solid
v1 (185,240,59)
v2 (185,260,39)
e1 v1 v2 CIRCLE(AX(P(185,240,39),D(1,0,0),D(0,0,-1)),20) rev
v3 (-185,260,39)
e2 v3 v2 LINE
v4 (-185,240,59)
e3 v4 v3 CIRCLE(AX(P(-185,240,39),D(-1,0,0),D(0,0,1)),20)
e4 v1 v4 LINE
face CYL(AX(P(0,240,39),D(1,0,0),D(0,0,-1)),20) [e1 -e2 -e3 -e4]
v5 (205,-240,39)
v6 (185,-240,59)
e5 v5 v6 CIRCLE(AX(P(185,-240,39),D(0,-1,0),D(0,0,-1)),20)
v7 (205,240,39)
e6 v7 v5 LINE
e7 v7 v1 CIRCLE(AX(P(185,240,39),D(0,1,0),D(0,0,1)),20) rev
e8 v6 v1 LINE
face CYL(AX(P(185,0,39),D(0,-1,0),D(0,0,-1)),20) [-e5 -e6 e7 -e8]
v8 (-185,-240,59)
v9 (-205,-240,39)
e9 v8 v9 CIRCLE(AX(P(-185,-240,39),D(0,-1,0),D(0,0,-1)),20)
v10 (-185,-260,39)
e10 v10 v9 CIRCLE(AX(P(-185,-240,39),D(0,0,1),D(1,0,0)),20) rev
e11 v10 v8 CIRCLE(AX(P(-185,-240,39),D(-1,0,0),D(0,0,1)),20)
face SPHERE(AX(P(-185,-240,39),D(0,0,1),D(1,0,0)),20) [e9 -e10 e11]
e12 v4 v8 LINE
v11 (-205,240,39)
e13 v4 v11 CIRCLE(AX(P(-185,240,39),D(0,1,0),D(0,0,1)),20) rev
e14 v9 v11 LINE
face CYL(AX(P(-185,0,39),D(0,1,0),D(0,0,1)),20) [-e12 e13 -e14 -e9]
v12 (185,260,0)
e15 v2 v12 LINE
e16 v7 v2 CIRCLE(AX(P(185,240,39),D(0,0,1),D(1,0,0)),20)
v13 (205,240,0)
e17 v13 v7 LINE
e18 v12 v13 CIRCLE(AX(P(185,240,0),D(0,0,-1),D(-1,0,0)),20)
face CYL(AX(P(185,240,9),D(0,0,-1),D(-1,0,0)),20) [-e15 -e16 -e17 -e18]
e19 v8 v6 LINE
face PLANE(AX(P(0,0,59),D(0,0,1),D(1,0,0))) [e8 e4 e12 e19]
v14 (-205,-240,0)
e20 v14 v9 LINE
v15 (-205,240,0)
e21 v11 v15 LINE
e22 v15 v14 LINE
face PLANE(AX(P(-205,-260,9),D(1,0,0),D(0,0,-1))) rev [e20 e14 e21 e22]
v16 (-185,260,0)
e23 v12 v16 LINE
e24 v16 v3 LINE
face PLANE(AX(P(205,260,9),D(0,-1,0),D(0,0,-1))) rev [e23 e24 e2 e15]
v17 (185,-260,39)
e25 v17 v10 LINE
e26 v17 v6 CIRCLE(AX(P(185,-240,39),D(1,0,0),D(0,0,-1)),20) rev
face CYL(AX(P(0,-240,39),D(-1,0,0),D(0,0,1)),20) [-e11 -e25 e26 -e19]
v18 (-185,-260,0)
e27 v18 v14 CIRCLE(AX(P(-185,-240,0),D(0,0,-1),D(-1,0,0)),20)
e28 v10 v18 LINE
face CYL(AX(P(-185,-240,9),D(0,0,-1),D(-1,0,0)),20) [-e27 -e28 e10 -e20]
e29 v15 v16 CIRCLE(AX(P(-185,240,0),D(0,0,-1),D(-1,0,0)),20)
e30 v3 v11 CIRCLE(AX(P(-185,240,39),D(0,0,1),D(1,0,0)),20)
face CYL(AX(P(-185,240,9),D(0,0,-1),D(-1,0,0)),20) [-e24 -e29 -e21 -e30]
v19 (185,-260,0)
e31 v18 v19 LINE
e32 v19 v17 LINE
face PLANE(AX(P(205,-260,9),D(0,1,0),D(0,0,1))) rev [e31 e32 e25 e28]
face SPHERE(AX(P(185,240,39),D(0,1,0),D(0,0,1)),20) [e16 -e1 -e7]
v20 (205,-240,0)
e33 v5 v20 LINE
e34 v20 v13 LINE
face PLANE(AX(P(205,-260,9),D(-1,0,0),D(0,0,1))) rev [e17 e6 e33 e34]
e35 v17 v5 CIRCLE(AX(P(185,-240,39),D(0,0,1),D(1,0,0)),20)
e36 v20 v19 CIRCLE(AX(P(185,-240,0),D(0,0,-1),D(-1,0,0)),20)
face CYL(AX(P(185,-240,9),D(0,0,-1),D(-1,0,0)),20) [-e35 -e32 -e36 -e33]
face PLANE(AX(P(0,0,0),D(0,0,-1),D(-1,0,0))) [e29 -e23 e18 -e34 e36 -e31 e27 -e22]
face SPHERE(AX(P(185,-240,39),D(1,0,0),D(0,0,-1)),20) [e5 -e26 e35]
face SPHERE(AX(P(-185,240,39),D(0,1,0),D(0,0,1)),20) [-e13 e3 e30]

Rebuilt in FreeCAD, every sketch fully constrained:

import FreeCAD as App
import Part
import Sketcher

V = App.Vector


def edges_at(feature, points):
    """Names of the edges that pass closest to the given points."""
    edges = feature.Shape.Edges
    near = lambda p: min(range(len(edges)), key=lambda i: edges[i].distToShape(Part.Vertex(*p))[0])
    return sorted({f"Edge{near(p) + 1}" for p in points})

doc = App.newDocument("Part")
body = doc.addObject("PartDesign::Body", "Body")

sketch1 = body.newObject("Sketcher::SketchObject", "Sketch")
sketch1.AttachmentSupport = (doc.getObject("XY_Plane"), [""])
sketch1.MapMode = "FlatFace"
sketch1.addGeometry([
    Part.LineSegment(V(-205, -260, 0), V(205, -260, 0)),
    Part.LineSegment(V(205, -260, 0), V(205, 260, 0)),
    Part.LineSegment(V(205, 260, 0), V(-205, 260, 0)),
    Part.LineSegment(V(-205, 260, 0), V(-205, -260, 0)),
], False)
sketch1.addConstraint([
    Sketcher.Constraint("Coincident", 0, 2, 1, 1),
    Sketcher.Constraint("Coincident", 1, 2, 2, 1),
    Sketcher.Constraint("Coincident", 2, 2, 3, 1),
    Sketcher.Constraint("Coincident", 3, 2, 0, 1),
    Sketcher.Constraint("Horizontal", 0),
    Sketcher.Constraint("Vertical", 1),
    Sketcher.Constraint("Horizontal", 2),
    Sketcher.Constraint("Vertical", 3),
    Sketcher.Constraint("Symmetric", 0, 2, 2, 2, -1, 1),
    Sketcher.Constraint("DistanceX", 0, 1, 0, 2, 410.0),
    Sketcher.Constraint("DistanceY", 1, 1, 1, 2, 520.0),
])
pad1 = body.newObject("PartDesign::Pad", "Pad")
pad1.Profile = sketch1
pad1.Length = 9

sketch2 = body.newObject("Sketcher::SketchObject", "Sketch001")
sketch2.AttachmentSupport = (doc.getObject("XY_Plane"), [""])
sketch2.MapMode = "FlatFace"
sketch2.AttachmentOffset = App.Placement(V(0, 0, 9), App.Rotation())
sketch2.addGeometry([
    Part.LineSegment(V(-205, 260, 0), V(-205, -260, 0)),
    Part.LineSegment(V(-205, -260, 0), V(205, -260, 0)),
    Part.LineSegment(V(205, -260, 0), V(205, 260, 0)),
    Part.LineSegment(V(205, 260, 0), V(-205, 260, 0)),
], False)
sketch2.addConstraint([
    Sketcher.Constraint("Coincident", 0, 2, 1, 1),
    Sketcher.Constraint("Coincident", 1, 2, 2, 1),
    Sketcher.Constraint("Coincident", 2, 2, 3, 1),
    Sketcher.Constraint("Coincident", 3, 2, 0, 1),
    Sketcher.Constraint("Vertical", 0),
    Sketcher.Constraint("Horizontal", 1),
    Sketcher.Constraint("Vertical", 2),
    Sketcher.Constraint("Horizontal", 3),
    Sketcher.Constraint("Symmetric", 0, 2, 2, 2, -1, 1),
    Sketcher.Constraint("DistanceX", 1, 1, 1, 2, 410.0),
    Sketcher.Constraint("DistanceY", 0, 2, 0, 1, 520.0),
])
pad2 = body.newObject("PartDesign::Pad", "Pad001")
pad2.Profile = sketch2
pad2.Length = 50
doc.recompute()

fillet = body.newObject("PartDesign::Fillet", "Fillet")
fillet.Base = (pad2, edges_at(pad2, [
    (205, 0, 59),
    (0, 260, 59),
    (-205, 0, 59),
    (0, -260, 59),
    (205, 260, 29.5),
    (205, -260, 29.5),
    (-205, -260, 29.5),
    (-205, 260, 29.5),
]))
fillet.Radius = 20

doc.recompute()
